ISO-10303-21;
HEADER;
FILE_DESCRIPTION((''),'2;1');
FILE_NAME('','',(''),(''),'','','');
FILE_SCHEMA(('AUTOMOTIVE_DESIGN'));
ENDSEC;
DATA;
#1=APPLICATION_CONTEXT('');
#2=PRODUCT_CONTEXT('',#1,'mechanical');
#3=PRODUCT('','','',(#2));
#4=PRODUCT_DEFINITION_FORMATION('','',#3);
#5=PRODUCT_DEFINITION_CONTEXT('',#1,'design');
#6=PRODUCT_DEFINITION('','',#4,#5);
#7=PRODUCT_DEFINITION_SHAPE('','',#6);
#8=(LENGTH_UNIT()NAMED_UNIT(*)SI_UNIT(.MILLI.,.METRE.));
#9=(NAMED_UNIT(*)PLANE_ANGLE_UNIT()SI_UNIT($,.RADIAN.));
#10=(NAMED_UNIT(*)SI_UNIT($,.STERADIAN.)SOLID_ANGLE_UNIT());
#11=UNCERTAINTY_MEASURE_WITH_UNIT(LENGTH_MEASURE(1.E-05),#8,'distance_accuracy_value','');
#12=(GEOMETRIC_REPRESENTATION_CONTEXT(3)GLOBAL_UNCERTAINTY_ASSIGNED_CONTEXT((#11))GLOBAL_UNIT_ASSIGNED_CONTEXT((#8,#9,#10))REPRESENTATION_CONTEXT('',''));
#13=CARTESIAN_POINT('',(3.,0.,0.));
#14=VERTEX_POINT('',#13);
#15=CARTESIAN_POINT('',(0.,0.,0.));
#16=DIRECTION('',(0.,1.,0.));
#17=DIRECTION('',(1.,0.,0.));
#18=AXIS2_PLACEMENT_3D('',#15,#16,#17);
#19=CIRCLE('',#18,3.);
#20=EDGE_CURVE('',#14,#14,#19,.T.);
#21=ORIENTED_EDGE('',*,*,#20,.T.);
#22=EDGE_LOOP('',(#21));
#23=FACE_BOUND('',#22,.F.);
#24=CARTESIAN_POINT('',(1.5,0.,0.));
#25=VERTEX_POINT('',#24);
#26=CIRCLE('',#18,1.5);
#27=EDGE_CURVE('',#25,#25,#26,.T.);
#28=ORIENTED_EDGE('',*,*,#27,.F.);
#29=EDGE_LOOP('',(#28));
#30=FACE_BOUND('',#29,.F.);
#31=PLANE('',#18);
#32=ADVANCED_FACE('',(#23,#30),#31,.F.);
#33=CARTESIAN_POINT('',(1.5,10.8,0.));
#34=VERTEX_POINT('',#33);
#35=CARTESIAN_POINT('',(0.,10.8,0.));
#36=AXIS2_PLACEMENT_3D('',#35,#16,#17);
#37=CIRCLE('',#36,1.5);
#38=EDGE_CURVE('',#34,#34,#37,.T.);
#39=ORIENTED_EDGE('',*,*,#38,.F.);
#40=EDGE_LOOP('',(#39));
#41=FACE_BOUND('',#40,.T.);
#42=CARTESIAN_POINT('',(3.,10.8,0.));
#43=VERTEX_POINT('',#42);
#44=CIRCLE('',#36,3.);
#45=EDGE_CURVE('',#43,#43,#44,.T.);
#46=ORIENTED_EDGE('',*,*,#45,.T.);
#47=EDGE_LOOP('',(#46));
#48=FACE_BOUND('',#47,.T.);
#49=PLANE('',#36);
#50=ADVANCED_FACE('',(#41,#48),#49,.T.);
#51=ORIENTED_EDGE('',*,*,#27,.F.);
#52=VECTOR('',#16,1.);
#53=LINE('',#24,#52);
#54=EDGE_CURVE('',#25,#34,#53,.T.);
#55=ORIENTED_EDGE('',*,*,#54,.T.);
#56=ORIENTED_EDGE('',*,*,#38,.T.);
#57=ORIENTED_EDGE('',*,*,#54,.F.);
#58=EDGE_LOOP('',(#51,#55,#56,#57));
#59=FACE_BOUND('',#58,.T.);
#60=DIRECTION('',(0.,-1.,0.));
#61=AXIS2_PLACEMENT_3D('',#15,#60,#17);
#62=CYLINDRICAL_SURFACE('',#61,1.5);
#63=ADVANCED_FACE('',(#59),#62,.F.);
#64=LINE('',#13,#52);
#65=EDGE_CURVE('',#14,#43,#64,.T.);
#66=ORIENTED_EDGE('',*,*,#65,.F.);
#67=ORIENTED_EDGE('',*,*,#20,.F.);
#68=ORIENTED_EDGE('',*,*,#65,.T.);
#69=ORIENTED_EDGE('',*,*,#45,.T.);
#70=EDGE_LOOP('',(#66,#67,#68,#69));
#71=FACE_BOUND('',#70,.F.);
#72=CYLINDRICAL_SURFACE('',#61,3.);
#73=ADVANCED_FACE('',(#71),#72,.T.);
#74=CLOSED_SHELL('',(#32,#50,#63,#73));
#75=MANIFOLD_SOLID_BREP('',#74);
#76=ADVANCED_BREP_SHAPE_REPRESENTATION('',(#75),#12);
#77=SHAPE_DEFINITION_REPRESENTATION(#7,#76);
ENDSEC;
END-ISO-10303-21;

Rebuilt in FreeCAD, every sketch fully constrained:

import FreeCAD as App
import Part
import Sketcher

V = App.Vector

doc = App.newDocument("Part")
body = doc.addObject("PartDesign::Body", "Body")

sketch1 = body.newObject("Sketcher::SketchObject", "Sketch")
sketch1.AttachmentSupport = (doc.getObject("XZ_Plane"), [""])
sketch1.MapMode = "FlatFace"
sketch1.addGeometry(Part.Circle(V(0, 0, 0), V(0, 0, 1), 3), False)
sketch1.addGeometry(Part.Circle(V(0, 0, 0), V(0, 0, 1), 1.5), False)
sketch1.addConstraint(Sketcher.Constraint("Coincident", 0, 3, -1, 1))
sketch1.addConstraint(Sketcher.Constraint("Coincident", 1, 3, -1, 1))
sketch1.addConstraint(Sketcher.Constraint("Diameter", 0, 6.0))
sketch1.addConstraint(Sketcher.Constraint("Diameter", 1, 3.0))
pad1 = body.newObject("PartDesign::Pad", "Pad")
pad1.Profile = sketch1
pad1.Length = 10.8
pad1.Reversed = True

doc.recompute()
